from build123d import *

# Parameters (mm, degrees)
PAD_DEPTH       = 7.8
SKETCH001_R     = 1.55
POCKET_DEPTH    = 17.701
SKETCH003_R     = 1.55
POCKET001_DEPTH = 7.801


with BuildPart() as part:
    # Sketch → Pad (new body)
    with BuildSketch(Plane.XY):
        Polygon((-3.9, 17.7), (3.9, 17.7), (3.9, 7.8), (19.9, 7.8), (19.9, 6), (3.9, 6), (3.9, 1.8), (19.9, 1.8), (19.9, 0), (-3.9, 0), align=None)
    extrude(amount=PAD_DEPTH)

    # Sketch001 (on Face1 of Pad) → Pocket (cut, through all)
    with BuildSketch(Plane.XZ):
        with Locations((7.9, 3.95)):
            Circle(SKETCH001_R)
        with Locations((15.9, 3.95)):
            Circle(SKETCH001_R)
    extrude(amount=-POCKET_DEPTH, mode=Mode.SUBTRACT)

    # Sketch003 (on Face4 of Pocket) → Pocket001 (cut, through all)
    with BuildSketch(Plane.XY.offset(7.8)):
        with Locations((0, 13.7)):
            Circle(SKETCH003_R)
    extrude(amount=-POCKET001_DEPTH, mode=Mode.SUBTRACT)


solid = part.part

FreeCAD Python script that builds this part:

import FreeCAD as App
import Part
import Sketcher

V = App.Vector


def add_polygon(sketch, points):
    """Adds a closed chain of lines whose ends are joined by coincident constraints."""
    first, n = sketch.GeometryCount, len(points)
    for a, b in zip(points, points[1:] + points[:1]):
        sketch.addGeometry(Part.LineSegment(App.Vector(*a, 0), App.Vector(*b, 0)), False)
    for i in range(n):
        sketch.addConstraint(Sketcher.Constraint("Coincident", first + i, 2, first + (i + 1) % n, 1))

doc = App.newDocument("Part")
params = doc.addObject("Spreadsheet::Sheet", "Params")
for row, (alias, value) in enumerate([
    ("sketch1_width", "16 mm"),
    ("sketch1_width2", "7.8 mm"),
    ("sketch1_height", "17.7 mm"),
    ("sketch1_height2", "1.8 mm"),
    ("sketch1_height3", "4.2 mm"),
    ("pad1_length", "7.8 mm"),
    ("sketch2_diameter", "3.1 mm"),
    ("sketch3_diameter", "3.1 mm"),
], start=1):
    params.set(f"A{row}", alias)
    params.set(f"B{row}", "=" + value)
    params.setAlias(f"B{row}", alias)

body = doc.addObject("PartDesign::Body", "Body")

# Sketch on XY plane
sketch1 = body.newObject("Sketcher::SketchObject", "Sketch")
sketch1.AttachmentSupport = (doc.getObject("XY_Plane"), [""])
sketch1.MapMode = "FlatFace"
add_polygon(sketch1, [(3.9, 17.7), (-3.9, 17.7), (-3.9, 0), (19.9, 0), (19.9, 1.8), (3.9, 1.8), (3.9, 6), (19.9, 6), (19.9, 7.8), (3.9, 7.8)])  # lines 0-9
sketch1.addConstraint([
    Sketcher.Constraint("Horizontal", 0),
    Sketcher.Constraint("Vertical", 1),
    Sketcher.Constraint("Horizontal", 2),
    Sketcher.Constraint("Vertical", 3),
    Sketcher.Constraint("Horizontal", 4),
    Sketcher.Constraint("Vertical", 5),
    Sketcher.Constraint("Horizontal", 6),
    Sketcher.Constraint("Vertical", 7),
    Sketcher.Constraint("Horizontal", 8),
    Sketcher.Constraint("Vertical", 9),
    Sketcher.Constraint("PointOnObject", 1, 2, -1),
    Sketcher.Constraint("Vertical", 3, 2, 6, 2),
    Sketcher.Constraint("Vertical", 5, 2, 8, 2),
    Sketcher.Constraint("Equal", 3, 7),
    Sketcher.Constraint("DistanceX", 4, 2, 4, 1, 16.0),
    Sketcher.Constraint("DistanceX", 0, 2, 0, 1, 7.8),
    Sketcher.Constraint("DistanceY", 1, 2, 1, 1, 17.7),
    Sketcher.Constraint("DistanceY", 3, 1, 3, 2, 1.8),
    Sketcher.Constraint("DistanceY", 5, 1, 5, 2, 4.2),
    Sketcher.Constraint("DistanceX", 0, 2, -1, 1, 3.9),
])
sketch1.setExpression("Constraints[24]", "Params.sketch1_width")
sketch1.setExpression("Constraints[25]", "Params.sketch1_width2")
sketch1.setExpression("Constraints[26]", "Params.sketch1_height")
sketch1.setExpression("Constraints[27]", "Params.sketch1_height2")
sketch1.setExpression("Constraints[28]", "Params.sketch1_height3")
pad1 = body.newObject("PartDesign::Pad", "Pad")
pad1.Profile = sketch1
pad1.setExpression("Length", "Params.pad1_length")

# Sketch on XZ plane
sketch2 = body.newObject("Sketcher::SketchObject", "Sketch001")
sketch2.AttachmentSupport = (doc.getObject("XZ_Plane"), [""])
sketch2.MapMode = "FlatFace"
sketch2.addGeometry([
    Part.Circle(V(7.9, 4, 0), V(0, 0, 1), 1.6),
    Part.Circle(V(15.9, 4, 0), V(0, 0, 1), 1.6),
], False)
sketch2.addConstraint([
    Sketcher.Constraint("Equal", 0, 1),
    Sketcher.Constraint("Horizontal", 0, 3, 1, 3),
    Sketcher.Constraint("Diameter", 0, 3.1),
    Sketcher.Constraint("DistanceX", 0, 3, 1, 3, 8.0),
    Sketcher.Constraint("DistanceX", -1, 1, 0, 3, 7.9),
    Sketcher.Constraint("DistanceY", -1, 1, 0, 3, 3.95),
])
sketch2.setExpression("Constraints[2]", "Params.sketch2_diameter")
pocket1 = body.newObject("PartDesign::Pocket", "Pocket")
pocket1.Profile = sketch2
pocket1.Type = "ThroughAll"

# Sketch on XY plane
sketch3 = body.newObject("Sketcher::SketchObject", "Sketch002")
sketch3.AttachmentSupport = (doc.getObject("XY_Plane"), [""])
sketch3.MapMode = "FlatFace"
sketch3.AttachmentOffset = App.Placement(V(0, 0, 7.8), App.Rotation())
sketch3.addGeometry(Part.Circle(V(0, 13.7, 0), V(0, 0, 1), 1.6), False)
sketch3.addConstraint([
    Sketcher.Constraint("PointOnObject", 0, 3, -2),
    Sketcher.Constraint("Diameter", 0, 3.1),
    Sketcher.Constraint("DistanceY", -1, 1, 0, 3, 13.7),
])
sketch3.setExpression("Constraints[1]", "Params.sketch3_diameter")
pocket2 = body.newObject("PartDesign::Pocket", "Pocket001")
pocket2.Profile = sketch3
pocket2.Type = "ThroughAll"

doc.recompute()
